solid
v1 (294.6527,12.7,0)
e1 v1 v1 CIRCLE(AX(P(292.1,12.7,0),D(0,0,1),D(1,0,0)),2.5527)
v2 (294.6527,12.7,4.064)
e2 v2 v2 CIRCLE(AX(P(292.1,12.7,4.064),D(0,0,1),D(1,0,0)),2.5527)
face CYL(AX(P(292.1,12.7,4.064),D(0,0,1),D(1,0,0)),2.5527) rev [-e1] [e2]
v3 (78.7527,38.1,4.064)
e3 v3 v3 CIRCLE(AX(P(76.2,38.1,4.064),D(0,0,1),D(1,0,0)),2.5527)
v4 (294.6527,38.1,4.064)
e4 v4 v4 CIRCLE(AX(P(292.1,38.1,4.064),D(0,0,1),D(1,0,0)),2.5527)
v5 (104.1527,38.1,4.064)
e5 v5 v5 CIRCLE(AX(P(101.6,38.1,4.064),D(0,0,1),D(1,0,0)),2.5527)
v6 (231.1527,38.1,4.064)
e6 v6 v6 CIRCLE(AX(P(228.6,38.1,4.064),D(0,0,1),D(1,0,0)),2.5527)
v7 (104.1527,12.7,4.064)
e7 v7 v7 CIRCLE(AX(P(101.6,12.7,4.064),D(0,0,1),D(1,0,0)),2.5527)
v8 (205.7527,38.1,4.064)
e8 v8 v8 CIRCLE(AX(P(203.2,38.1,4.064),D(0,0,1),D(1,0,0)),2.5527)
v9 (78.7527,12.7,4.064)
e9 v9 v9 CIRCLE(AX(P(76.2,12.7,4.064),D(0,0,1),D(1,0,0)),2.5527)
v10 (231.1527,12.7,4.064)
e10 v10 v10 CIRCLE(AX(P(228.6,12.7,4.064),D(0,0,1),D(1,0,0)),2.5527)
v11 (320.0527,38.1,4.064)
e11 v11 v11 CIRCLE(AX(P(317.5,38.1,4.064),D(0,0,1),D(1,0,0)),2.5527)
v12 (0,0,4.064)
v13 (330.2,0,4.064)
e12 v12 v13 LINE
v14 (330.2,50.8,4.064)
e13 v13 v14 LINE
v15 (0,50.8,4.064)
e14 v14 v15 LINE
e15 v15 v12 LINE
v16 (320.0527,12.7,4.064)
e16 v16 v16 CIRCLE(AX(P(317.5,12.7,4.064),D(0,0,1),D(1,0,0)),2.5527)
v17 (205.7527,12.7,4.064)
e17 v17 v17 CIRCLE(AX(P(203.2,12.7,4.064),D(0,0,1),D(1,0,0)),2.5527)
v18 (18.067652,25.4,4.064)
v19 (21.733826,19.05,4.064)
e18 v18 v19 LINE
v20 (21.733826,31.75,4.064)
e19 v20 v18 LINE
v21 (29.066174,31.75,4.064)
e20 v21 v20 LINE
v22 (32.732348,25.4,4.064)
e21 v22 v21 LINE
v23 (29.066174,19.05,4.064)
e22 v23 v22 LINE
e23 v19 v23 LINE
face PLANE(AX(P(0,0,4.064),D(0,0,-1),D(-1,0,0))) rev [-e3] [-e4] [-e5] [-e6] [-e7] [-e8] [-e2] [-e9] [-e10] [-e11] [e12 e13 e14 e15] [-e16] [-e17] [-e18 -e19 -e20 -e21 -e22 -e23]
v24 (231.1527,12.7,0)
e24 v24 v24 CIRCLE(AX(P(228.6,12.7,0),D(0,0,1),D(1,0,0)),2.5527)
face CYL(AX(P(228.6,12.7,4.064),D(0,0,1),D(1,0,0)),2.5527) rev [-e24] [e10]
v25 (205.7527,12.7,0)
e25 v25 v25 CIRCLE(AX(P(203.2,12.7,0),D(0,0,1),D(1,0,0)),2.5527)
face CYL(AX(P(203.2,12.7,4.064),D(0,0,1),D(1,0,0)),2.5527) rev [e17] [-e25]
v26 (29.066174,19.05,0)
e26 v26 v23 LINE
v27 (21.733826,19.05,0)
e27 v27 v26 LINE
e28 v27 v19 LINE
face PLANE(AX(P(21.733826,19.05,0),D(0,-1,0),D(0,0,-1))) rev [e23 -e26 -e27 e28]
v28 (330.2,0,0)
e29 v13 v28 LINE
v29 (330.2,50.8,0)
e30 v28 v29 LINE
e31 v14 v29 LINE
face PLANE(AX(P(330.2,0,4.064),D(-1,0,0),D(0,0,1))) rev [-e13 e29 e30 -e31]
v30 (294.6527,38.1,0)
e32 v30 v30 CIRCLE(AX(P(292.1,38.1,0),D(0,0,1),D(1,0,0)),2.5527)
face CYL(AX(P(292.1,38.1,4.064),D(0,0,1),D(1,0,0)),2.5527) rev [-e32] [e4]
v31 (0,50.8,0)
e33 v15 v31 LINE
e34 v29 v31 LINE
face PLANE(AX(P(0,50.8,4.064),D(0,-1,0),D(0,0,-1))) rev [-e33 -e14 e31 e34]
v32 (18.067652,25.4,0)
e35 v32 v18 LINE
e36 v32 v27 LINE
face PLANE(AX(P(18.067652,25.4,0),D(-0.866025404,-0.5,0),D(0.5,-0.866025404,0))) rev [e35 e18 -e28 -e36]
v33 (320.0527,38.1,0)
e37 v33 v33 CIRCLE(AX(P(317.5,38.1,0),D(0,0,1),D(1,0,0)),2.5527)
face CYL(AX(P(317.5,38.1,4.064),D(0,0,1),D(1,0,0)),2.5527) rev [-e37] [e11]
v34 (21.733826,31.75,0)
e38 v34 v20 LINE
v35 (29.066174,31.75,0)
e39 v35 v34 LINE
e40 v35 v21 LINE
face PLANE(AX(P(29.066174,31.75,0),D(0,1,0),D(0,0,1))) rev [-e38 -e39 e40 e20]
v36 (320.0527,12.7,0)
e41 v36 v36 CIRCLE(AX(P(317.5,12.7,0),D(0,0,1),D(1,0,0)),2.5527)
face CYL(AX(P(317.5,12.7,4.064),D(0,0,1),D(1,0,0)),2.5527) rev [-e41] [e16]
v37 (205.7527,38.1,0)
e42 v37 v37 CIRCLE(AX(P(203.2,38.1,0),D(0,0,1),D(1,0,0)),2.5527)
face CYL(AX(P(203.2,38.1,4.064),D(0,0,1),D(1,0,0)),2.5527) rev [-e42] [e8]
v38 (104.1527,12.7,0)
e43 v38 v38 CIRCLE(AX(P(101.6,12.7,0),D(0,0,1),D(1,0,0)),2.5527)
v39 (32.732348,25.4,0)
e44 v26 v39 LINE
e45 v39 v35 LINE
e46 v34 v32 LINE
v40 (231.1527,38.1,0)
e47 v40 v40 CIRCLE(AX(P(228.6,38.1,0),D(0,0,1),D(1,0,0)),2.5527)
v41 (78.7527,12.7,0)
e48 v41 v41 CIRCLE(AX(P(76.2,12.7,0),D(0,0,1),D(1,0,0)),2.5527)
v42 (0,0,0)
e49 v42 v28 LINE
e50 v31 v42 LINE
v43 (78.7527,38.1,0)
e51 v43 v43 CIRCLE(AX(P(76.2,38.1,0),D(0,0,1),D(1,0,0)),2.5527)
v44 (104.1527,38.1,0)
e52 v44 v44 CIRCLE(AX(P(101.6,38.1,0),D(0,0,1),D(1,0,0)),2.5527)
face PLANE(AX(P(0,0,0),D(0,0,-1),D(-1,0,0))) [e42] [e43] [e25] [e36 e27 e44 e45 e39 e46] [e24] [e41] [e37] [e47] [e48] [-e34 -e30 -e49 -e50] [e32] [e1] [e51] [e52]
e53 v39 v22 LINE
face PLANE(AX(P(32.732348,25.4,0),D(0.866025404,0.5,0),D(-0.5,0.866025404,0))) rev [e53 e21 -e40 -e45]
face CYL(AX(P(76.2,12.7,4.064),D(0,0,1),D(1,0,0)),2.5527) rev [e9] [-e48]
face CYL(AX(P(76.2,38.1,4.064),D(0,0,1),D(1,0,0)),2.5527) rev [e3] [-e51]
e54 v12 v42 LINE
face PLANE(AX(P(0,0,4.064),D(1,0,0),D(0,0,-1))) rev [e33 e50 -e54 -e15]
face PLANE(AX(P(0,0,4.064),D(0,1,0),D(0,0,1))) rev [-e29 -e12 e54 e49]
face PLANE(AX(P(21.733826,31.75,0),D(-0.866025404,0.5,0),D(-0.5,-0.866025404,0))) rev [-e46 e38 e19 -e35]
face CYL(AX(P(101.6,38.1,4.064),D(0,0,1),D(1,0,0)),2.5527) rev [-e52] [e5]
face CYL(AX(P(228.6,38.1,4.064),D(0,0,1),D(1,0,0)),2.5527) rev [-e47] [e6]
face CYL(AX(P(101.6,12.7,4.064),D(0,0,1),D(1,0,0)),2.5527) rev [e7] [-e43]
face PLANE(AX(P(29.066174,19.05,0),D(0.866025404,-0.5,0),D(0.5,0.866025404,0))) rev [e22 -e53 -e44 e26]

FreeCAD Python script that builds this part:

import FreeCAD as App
import Part
import Sketcher
from FreeCAD import Vector
Q = App.Units.Quantity

doc = App.newDocument("Part")
params = doc.addObject("Spreadsheet::Sheet", "Params")
for row, (alias, value) in enumerate([
    ("sketch1_width", "13 in"),
    ("sketch1_height", "2 in"),
    ("pad1_length", "0.16 in"),
    ("sketch2_diameter", "0.201 in"),
    ("hole_diameter", "0.201 in"),
    ("sketch4_diameter", "0.201 in"),
    ("hole2_diameter", "0.201 in"),
], start=1):
    params.set(f"A{row}", alias)
    params.set(f"B{row}", "=" + value)
    params.setAlias(f"B{row}", alias)

body = doc.addObject("PartDesign::Body", "Body")

sketch1 = doc.addObject("Sketcher::SketchObject", "Sketch")
body.addObject(sketch1)
sketch1.AttachmentSupport = (doc.XY_Plane, [""])
sketch1.MapMode = "FlatFace"
sketch1.addGeometry([
    Part.LineSegment(Vector(0, 50.8, 0), Vector(0, 0, 0)),
    Part.LineSegment(Vector(0, 0, 0), Vector(330.2, 0, 0)),
    Part.LineSegment(Vector(330.2, 0, 0), Vector(330.2, 50.8, 0)),
    Part.LineSegment(Vector(330.2, 50.8, 0), Vector(0, 50.8, 0)),
], False)
sketch1.addConstraint([
    Sketcher.Constraint("Coincident", 0, 2, 1, 1),
    Sketcher.Constraint("Coincident", 1, 2, 2, 1),
    Sketcher.Constraint("Coincident", 2, 2, 3, 1),
    Sketcher.Constraint("Coincident", 3, 2, 0, 1),
    Sketcher.Constraint("Vertical", 0),
    Sketcher.Constraint("Horizontal", 1),
    Sketcher.Constraint("Vertical", 2),
    Sketcher.Constraint("Horizontal", 3),
    Sketcher.Constraint("Coincident", 0, 2, -1, 1),
    Sketcher.Constraint("DistanceX", 1, 1, 1, 2, Q("13 in")),
    Sketcher.Constraint("DistanceY", 0, 2, 0, 1, Q("2 in")),
])
sketch1.setExpression("Constraints[9]", "Params.sketch1_width")
sketch1.setExpression("Constraints[10]", "Params.sketch1_height")
pad1 = doc.addObject("PartDesign::Pad", "Pad")
body.addObject(pad1)
pad1.Profile = sketch1
pad1.setExpression("Length", "Params.pad1_length")

sketch2 = doc.addObject("Sketcher::SketchObject", "Sketch001")
body.addObject(sketch2)
sketch2.AttachmentSupport = (doc.XY_Plane, [""])
sketch2.MapMode = "FlatFace"
sketch2.AttachmentOffset = App.Placement(Vector(0, 0, 0.16 * 25.4), App.Rotation())
sketch2.addGeometry([
    Part.Circle(Vector(203.2, 12.7, 0), Vector(0, 0, 1), 2.5527),
    Part.Circle(Vector(228.6, 38.1, 0), Vector(0, 0, 1), 2.5527),
    Part.Circle(Vector(203.2, 38.1, 0), Vector(0, 0, 1), 2.5527),
    Part.Circle(Vector(228.6, 12.7, 0), Vector(0, 0, 1), 2.5527),
    Part.Circle(Vector(76.2, 38.1, 0), Vector(0, 0, 1), 2.5527),
    Part.Circle(Vector(101.6, 12.7, 0), Vector(0, 0, 1), 2.5527),
    Part.Circle(Vector(76.2, 12.7, 0), Vector(0, 0, 1), 2.5527),
    Part.Circle(Vector(101.6, 38.1, 0), Vector(0, 0, 1), 2.5527),
], False)
sketch2.addConstraint([
    Sketcher.Constraint("Equal", 0, 1),
    Sketcher.Constraint("Equal", 1, 2),
    Sketcher.Constraint("Equal", 2, 3),
    Sketcher.Constraint("Equal", 3, 4),
    Sketcher.Constraint("Equal", 4, 5),
    Sketcher.Constraint("Equal", 5, 6),
    Sketcher.Constraint("Equal", 6, 7),
    Sketcher.Constraint("Horizontal", 1, 3, 2, 3),
    Sketcher.Constraint("Horizontal", 0, 3, 3, 3),
    Sketcher.Constraint("Horizontal", 2, 3, 4, 3),
    Sketcher.Constraint("Horizontal", 3, 3, 5, 3),
    Sketcher.Constraint("Horizontal", 5, 3, 6, 3),
    Sketcher.Constraint("Horizontal", 4, 3, 7, 3),
    Sketcher.Constraint("Vertical", 0, 3, 2, 3),
    Sketcher.Constraint("Vertical", 1, 3, 3, 3),
    Sketcher.Constraint("Vertical", 4, 3, 6, 3),
    Sketcher.Constraint("Vertical", 5, 3, 7, 3),
    Sketcher.Constraint("Diameter", 0, Q("0.201 in")),
    Sketcher.Constraint("DistanceX", -1, 1, 0, 3, Q("8 in")),
    Sketcher.Constraint("DistanceX", -1, 1, 1, 3, Q("9 in")),
    Sketcher.Constraint("DistanceX", -1, 1, 4, 3, Q("3 in")),
    Sketcher.Constraint("DistanceX", -1, 1, 5, 3, Q("4 in")),
    Sketcher.Constraint("DistanceY", 0, 3, 1, 3, Q("1 in")),
    Sketcher.Constraint("DistanceY", -1, 1, 0, 3, Q("0.5 in")),
])
sketch2.setExpression("Constraints[17]", "Params.sketch2_diameter")
doc.recompute()
hole = doc.addObject("PartDesign::Hole", "Hole")
body.addObject(hole)
hole.Profile = sketch2
hole.ThreadType = "None"
hole.setExpression("Diameter", "Params.hole_diameter")
hole.DepthType = "ThroughAll"

sketch3 = doc.addObject("Sketcher::SketchObject", "Sketch002")
body.addObject(sketch3)
sketch3.AttachmentSupport = (doc.XY_Plane, [""])
sketch3.MapMode = "FlatFace"
sketch3.AttachmentOffset = App.Placement(Vector(0, 0, 0.16 * 25.4), App.Rotation())
sketch3.addGeometry([
    Part.LineSegment(Vector(21.733826, 31.75, 0), Vector(18.067652, 25.4, 0)),
    Part.LineSegment(Vector(18.067652, 25.4, 0), Vector(21.733826, 19.05, 0)),
    Part.LineSegment(Vector(21.733826, 19.05, 0), Vector(29.066174, 19.05, 0)),
    Part.LineSegment(Vector(29.066174, 19.05, 0), Vector(32.732348, 25.4, 0)),
    Part.LineSegment(Vector(32.732348, 25.4, 0), Vector(29.066174, 31.75, 0)),
    Part.LineSegment(Vector(29.066174, 31.75, 0), Vector(21.733826, 31.75, 0)),
], False)
sketch3.addConstraint([
    Sketcher.Constraint("Coincident", 0, 2, 1, 1),
    Sketcher.Constraint("Coincident", 1, 2, 2, 1),
    Sketcher.Constraint("Coincident", 2, 2, 3, 1),
    Sketcher.Constraint("Coincident", 3, 2, 4, 1),
    Sketcher.Constraint("Coincident", 4, 2, 5, 1),
    Sketcher.Constraint("Coincident", 5, 2, 0, 1),
    Sketcher.Constraint("Horizontal", 2),
    Sketcher.Constraint("Horizontal", 5),
    Sketcher.Constraint("Parallel", 0, 3),
    Sketcher.Constraint("Parallel", 1, 4),
    Sketcher.Constraint("Horizontal", 0, 2, 3, 2),
    Sketcher.Constraint("Vertical", 2, 2, 4, 2),
    Sketcher.Constraint("Vertical", 1, 2, 5, 2),
    Sketcher.Constraint("DistanceY", -1, 1, 0, 2, Q("1 in")),
    Sketcher.Constraint("Angle", 0, Q("-120 deg")),
    Sketcher.Constraint("DistanceY", 2, 2, 4, 2, Q("0.5 in")),
    Sketcher.Constraint("DistanceX", 2, 1, 2, 2, 7.332348),
    Sketcher.Constraint("DistanceX", -1, 1, 0, 2, 18.067652),
])
pocket1 = doc.addObject("PartDesign::Pocket", "Pocket")
body.addObject(pocket1)
pocket1.Profile = sketch3
pocket1.Type = "ThroughAll"

sketch4 = doc.addObject("Sketcher::SketchObject", "Sketch003")
body.addObject(sketch4)
sketch4.AttachmentSupport = (doc.XY_Plane, [""])
sketch4.MapMode = "FlatFace"
sketch4.AttachmentOffset = App.Placement(Vector(0, 0, 0.16 * 25.4), App.Rotation())
sketch4.addGeometry([
    Part.Circle(Vector(317.5, 38.1, 0), Vector(0, 0, 1), 2.5527),
    Part.Circle(Vector(292.1, 12.7, 0), Vector(0, 0, 1), 2.5527),
    Part.Circle(Vector(317.5, 12.7, 0), Vector(0, 0, 1), 2.5527),
    Part.Circle(Vector(292.1, 38.1, 0), Vector(0, 0, 1), 2.5527),
], False)
sketch4.addConstraint([
    Sketcher.Constraint("Equal", 0, 1),
    Sketcher.Constraint("Equal", 1, 2),
    Sketcher.Constraint("Equal", 2, 3),
    Sketcher.Constraint("Horizontal", 1, 3, 2, 3),
    Sketcher.Constraint("Horizontal", 0, 3, 3, 3),
    Sketcher.Constraint("Vertical", 0, 3, 2, 3),
    Sketcher.Constraint("Vertical", 1, 3, 3, 3),
    Sketcher.Constraint("Diameter", 0, Q("0.201 in")),
    Sketcher.Constraint("DistanceX", 1, 3, 0, 3, Q("1 in")),
    Sketcher.Constraint("DistanceY", 1, 3, 0, 3, Q("1 in")),
    Sketcher.Constraint("DistanceX", -1, 1, 0, 3, Q("12.5 in")),
    Sketcher.Constraint("DistanceY", -1, 1, 0, 3, Q("1.5 in")),
])
sketch4.setExpression("Constraints[7]", "Params.sketch4_diameter")
doc.recompute()
hole2 = doc.addObject("PartDesign::Hole", "Hole001")
body.addObject(hole2)
hole2.Profile = sketch4
hole2.ThreadType = "None"
hole2.setExpression("Diameter", "Params.hole2_diameter")
hole2.DepthType = "ThroughAll"

doc.recompute()
